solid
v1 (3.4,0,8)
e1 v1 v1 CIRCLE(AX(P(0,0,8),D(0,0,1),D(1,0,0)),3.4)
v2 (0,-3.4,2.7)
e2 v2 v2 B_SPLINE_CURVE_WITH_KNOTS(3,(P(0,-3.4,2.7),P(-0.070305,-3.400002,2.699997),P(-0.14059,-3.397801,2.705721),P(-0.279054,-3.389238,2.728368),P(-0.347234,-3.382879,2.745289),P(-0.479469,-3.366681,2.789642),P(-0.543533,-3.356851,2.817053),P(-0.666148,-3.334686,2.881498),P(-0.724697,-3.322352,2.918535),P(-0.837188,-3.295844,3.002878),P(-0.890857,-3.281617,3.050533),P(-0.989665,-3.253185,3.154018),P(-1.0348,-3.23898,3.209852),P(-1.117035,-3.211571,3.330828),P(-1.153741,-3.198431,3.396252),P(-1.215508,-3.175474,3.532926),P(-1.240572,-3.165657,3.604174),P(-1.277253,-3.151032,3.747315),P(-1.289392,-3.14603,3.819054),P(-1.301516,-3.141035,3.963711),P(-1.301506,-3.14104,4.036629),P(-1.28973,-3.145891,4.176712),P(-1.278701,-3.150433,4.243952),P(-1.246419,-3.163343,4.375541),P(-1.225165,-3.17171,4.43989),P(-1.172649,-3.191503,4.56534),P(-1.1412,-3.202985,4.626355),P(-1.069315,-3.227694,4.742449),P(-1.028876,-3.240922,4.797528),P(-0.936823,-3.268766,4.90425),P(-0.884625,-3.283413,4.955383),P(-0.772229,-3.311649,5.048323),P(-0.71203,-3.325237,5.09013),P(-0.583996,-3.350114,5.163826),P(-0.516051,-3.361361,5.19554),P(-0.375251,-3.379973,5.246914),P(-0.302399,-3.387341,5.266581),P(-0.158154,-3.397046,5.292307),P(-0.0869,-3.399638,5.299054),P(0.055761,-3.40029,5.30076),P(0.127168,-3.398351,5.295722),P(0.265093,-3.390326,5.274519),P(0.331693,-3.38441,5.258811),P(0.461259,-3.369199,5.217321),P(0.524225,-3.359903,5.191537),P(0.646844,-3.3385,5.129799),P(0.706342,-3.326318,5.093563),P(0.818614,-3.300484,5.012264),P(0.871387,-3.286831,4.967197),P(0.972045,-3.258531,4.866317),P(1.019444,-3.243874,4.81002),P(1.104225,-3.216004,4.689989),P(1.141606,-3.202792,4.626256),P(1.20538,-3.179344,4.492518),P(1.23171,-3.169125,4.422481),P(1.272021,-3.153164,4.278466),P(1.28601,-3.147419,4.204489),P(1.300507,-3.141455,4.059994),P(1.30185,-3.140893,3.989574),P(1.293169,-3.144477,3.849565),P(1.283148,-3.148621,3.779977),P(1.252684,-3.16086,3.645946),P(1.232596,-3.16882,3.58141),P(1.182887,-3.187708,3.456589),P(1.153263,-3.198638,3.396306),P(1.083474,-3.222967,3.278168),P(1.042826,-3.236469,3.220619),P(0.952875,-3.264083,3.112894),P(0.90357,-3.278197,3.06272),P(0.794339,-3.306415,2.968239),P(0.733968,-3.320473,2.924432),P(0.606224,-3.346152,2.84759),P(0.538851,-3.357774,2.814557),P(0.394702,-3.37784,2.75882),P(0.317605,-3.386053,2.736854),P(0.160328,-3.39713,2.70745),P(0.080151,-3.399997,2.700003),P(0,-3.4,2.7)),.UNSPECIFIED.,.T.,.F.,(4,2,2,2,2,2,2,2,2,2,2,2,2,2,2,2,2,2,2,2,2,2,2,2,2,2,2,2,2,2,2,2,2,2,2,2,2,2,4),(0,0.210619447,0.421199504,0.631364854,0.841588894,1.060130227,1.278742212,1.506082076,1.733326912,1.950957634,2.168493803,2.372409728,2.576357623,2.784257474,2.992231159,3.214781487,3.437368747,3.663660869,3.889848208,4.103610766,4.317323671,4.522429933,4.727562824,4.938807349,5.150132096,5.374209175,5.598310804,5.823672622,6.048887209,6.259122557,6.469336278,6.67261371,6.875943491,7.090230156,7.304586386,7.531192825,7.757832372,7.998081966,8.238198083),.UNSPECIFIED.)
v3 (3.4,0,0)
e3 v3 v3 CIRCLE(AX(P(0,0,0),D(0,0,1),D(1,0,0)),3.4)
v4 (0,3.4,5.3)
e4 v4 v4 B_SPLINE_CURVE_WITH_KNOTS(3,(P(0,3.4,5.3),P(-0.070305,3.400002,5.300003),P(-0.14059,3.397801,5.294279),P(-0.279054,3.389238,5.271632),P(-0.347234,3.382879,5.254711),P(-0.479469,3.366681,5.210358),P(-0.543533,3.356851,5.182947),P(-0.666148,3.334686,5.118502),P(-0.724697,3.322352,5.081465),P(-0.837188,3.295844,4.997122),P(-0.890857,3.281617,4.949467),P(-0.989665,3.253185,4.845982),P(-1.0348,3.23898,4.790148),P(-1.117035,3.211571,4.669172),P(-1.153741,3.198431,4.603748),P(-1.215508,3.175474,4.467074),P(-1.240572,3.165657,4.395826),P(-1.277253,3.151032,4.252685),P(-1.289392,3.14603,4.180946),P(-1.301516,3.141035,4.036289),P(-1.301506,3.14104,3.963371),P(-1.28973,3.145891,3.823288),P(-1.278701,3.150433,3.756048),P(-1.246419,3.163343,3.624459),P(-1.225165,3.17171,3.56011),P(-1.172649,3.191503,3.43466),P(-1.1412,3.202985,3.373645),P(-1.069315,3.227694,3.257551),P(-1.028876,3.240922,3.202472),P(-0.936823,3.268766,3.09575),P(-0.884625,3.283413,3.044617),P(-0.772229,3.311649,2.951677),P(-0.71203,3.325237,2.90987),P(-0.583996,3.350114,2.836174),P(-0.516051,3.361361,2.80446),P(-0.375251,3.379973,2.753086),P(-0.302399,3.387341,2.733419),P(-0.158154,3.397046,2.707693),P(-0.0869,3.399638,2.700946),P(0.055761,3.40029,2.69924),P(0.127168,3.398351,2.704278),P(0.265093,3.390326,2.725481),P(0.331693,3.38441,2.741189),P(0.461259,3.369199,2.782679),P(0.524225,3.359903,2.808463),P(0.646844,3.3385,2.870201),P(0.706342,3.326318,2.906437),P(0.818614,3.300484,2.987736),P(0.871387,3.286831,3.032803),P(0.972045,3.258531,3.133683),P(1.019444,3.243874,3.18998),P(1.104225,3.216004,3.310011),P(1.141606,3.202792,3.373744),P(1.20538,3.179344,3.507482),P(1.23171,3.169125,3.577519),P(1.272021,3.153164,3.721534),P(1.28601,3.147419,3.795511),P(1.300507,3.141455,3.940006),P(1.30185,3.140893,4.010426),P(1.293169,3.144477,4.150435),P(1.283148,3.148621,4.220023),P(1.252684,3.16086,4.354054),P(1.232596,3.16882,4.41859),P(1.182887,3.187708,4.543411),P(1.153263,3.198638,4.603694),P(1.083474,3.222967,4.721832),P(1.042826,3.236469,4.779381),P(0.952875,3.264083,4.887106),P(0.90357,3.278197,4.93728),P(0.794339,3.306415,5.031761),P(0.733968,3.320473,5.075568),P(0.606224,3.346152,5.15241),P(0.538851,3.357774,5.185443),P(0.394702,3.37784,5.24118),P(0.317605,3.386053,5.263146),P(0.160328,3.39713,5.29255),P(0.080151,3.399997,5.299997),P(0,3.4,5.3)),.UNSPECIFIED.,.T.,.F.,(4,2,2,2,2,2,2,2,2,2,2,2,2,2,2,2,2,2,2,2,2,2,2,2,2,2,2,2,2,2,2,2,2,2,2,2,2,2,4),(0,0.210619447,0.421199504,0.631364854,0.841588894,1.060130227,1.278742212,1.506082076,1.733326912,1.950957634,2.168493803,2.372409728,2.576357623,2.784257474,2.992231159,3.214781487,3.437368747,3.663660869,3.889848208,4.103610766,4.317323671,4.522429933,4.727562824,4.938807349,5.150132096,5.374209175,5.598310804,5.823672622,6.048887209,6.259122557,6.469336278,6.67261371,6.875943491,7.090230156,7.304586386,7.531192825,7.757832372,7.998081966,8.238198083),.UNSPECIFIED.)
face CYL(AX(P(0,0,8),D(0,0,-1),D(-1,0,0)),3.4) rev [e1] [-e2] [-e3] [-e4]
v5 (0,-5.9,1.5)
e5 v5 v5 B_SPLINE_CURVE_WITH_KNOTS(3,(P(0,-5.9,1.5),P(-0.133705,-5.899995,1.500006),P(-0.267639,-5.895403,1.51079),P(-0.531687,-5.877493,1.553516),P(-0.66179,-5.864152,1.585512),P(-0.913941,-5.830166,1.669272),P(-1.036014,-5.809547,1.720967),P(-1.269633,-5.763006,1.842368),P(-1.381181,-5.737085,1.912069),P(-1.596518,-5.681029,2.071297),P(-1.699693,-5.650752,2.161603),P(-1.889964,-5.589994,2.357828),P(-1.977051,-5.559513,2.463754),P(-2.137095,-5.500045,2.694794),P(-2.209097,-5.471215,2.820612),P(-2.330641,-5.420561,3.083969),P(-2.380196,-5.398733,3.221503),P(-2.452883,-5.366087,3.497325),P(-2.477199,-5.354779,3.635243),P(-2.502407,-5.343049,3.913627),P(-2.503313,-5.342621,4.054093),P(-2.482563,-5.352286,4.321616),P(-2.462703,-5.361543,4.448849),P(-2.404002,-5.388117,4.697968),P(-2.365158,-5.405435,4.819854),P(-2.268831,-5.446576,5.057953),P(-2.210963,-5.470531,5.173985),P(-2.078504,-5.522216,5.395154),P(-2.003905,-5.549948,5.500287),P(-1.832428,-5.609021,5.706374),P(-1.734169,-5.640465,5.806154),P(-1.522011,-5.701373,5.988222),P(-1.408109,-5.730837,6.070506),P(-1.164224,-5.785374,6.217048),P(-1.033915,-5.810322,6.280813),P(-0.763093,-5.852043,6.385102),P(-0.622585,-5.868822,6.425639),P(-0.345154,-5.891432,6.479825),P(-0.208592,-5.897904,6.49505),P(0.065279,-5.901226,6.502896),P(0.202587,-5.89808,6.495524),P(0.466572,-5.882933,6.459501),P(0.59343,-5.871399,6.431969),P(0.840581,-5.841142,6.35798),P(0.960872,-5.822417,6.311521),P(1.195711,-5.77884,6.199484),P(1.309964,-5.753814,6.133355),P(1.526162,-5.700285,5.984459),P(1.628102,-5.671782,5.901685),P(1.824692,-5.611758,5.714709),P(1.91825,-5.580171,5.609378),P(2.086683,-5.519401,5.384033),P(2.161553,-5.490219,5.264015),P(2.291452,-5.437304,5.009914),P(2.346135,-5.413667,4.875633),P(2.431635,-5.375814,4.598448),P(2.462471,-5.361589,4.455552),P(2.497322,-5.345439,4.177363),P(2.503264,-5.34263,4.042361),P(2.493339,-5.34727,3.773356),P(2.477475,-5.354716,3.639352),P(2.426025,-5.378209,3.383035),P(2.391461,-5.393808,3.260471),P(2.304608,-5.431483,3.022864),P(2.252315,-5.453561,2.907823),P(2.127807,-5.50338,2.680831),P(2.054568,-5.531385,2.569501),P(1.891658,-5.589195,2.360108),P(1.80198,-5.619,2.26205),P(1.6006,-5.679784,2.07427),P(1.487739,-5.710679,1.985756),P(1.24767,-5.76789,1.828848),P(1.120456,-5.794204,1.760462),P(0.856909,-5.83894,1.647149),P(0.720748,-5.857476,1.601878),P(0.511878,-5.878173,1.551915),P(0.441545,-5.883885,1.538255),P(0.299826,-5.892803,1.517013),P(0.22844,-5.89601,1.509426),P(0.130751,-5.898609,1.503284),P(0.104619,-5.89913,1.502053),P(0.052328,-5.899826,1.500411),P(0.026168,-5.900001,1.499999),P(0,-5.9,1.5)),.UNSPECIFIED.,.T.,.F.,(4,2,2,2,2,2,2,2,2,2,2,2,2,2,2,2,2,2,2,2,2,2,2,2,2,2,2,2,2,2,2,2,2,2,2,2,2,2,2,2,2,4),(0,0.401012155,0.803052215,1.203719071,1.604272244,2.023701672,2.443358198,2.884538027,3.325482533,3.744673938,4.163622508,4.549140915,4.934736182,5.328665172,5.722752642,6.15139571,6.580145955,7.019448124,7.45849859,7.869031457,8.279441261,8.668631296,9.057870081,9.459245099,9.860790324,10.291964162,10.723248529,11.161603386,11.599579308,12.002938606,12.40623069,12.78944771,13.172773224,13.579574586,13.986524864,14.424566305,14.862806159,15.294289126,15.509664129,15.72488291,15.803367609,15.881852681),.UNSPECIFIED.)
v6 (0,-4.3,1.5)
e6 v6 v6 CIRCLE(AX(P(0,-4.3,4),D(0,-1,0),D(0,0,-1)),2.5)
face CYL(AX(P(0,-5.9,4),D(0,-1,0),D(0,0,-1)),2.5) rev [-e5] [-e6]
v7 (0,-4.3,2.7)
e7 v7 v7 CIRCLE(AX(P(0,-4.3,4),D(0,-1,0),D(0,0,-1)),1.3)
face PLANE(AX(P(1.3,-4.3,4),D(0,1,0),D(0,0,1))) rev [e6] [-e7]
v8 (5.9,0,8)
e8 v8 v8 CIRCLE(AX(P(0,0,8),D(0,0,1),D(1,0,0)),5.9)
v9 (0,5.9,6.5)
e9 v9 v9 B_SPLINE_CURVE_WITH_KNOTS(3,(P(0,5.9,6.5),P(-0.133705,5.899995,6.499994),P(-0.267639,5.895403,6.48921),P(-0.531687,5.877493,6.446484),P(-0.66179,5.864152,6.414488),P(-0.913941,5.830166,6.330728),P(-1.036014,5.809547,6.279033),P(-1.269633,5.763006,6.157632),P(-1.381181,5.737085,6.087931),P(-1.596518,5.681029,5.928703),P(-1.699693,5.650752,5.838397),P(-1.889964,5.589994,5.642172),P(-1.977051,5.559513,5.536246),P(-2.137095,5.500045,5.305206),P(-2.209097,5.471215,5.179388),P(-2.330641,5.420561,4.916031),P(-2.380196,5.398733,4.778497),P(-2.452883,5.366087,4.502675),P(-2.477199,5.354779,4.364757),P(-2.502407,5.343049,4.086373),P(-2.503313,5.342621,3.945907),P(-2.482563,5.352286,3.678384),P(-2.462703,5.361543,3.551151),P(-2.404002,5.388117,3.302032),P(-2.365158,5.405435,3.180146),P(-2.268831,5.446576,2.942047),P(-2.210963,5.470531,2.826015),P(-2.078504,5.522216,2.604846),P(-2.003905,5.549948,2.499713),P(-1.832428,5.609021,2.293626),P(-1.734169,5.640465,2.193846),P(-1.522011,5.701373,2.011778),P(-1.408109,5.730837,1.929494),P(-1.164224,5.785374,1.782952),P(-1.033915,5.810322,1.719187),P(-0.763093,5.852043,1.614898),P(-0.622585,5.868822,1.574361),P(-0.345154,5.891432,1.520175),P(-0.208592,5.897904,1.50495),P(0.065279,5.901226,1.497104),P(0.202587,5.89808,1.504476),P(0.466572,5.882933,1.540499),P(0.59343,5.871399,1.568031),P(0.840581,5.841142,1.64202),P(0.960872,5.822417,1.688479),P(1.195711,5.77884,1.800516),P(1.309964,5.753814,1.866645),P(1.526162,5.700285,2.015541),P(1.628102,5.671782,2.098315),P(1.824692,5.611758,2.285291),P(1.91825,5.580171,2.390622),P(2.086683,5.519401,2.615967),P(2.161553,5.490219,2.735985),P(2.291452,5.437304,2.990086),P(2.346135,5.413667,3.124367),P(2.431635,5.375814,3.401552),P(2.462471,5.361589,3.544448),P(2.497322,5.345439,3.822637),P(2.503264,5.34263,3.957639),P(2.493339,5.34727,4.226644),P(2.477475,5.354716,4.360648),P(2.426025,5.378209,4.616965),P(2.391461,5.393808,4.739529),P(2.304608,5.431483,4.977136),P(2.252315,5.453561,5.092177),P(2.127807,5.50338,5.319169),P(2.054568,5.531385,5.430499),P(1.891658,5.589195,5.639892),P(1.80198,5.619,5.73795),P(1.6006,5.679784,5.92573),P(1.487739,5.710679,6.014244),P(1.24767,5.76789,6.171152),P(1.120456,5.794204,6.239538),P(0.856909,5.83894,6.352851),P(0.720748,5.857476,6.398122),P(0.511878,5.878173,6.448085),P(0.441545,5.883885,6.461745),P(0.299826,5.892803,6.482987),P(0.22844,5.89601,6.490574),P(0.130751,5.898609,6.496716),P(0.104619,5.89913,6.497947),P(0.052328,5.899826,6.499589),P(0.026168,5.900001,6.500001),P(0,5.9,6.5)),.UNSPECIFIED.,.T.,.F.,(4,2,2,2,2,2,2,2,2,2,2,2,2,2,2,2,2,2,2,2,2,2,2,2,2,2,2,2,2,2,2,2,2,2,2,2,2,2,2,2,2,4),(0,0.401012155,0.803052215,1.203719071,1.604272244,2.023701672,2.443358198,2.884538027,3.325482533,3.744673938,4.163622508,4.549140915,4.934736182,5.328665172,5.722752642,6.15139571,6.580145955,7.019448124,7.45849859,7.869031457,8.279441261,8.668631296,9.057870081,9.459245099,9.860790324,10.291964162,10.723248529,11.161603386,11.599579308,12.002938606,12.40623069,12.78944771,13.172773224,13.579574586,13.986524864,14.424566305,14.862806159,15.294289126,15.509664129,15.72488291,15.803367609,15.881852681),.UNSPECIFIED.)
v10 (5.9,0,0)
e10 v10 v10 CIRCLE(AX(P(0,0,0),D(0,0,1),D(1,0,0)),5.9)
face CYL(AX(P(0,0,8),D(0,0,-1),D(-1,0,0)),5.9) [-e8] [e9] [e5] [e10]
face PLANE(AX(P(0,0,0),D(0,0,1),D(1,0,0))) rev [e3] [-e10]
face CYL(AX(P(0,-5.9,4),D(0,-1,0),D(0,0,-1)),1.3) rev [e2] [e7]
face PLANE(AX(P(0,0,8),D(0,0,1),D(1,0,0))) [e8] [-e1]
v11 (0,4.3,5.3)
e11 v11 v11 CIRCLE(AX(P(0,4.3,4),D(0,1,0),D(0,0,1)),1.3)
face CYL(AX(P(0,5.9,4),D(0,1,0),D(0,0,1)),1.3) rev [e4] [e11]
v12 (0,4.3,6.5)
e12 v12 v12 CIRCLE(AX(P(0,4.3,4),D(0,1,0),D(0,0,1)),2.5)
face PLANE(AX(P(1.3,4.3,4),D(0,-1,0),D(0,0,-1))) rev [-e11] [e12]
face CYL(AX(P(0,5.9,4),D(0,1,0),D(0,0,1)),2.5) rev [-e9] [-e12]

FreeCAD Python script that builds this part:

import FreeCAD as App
import Part
import Sketcher
from FreeCAD import Vector
Q = App.Units.Quantity


def add_polygon(sketch, points):
    """Adds a closed chain of lines whose ends are joined by coincident constraints."""
    first, n = sketch.GeometryCount, len(points)
    for a, b in zip(points, points[1:] + points[:1]):
        sketch.addGeometry(Part.LineSegment(App.Vector(*a, 0), App.Vector(*b, 0)), False)
    for i in range(n):
        sketch.addConstraint(Sketcher.Constraint("Coincident", first + i, 2, first + (i + 1) % n, 1))

doc = App.newDocument("Part")
body = doc.addObject("PartDesign::Body", "Body")

# Sketch on XY plane
sketch1 = body.newObject("Sketcher::SketchObject", "Sketch")
sketch1.AttachmentSupport = (doc.getObject("XY_Plane"), [""])
sketch1.MapMode = "FlatFace"
sketch1.addGeometry([
    Part.Circle(Vector(0, 0, 0), Vector(0, 0, 1), 5.9),
    Part.Circle(Vector(0, 0, 0), Vector(0, 0, 1), 3.4),
], False)
sketch1.addConstraint([
    Sketcher.Constraint("Coincident", 0, 3, -1, 1),
    Sketcher.Constraint("Coincident", 1, 3, -1, 1),
    Sketcher.Constraint("Diameter", 0, Q("11.8 mm")),
    Sketcher.Constraint("Diameter", 1, Q("6.8 mm")),
])
pad1 = body.newObject("PartDesign::Pad", "Pad")
pad1.Profile = sketch1
pad1.Length = 8

# Sketch on YZ plane
sketch2 = body.newObject("Sketcher::SketchObject", "Sketch001")
sketch2.AttachmentSupport = (doc.getObject("YZ_Plane"), [""])
sketch2.MapMode = "FlatFace"
add_polygon(sketch2, [(0.1, 4), (5.9, 4), (5.9, 6.5), (4.3, 6.5), (4.3, 5.3), (0.9, 5.3)])  # lines 0-5
sketch2.addGeometry(Part.LineSegment(Vector(5.9, 4, 0), Vector(0.1, 4, 0)), True)  # axis
sketch2.addConstraint([
    Sketcher.Constraint("Horizontal", 0),
    Sketcher.Constraint("Vertical", 1),
    Sketcher.Constraint("Horizontal", 2),
    Sketcher.Constraint("Vertical", 3),
    Sketcher.Constraint("Horizontal", 4),
    Sketcher.Constraint("Horizontal", 6),
    Sketcher.Constraint("Coincident", 6, 1, 0, 2),
    Sketcher.Constraint("Equal", 0, 6),
    Sketcher.Constraint("Angle", 5, Q("-121 deg")),
    Sketcher.Constraint("DistanceX", 2, 2, 2, 1, Q("1.6 mm")),
    Sketcher.Constraint("DistanceX", 4, 2, 4, 1, Q("3.4 mm")),
    Sketcher.Constraint("DistanceY", 1, 1, 1, 2, Q("2.5 mm")),
    Sketcher.Constraint("DistanceY", 3, 2, 3, 1, Q("1.2 mm")),
    Sketcher.Constraint("DistanceY", -1, 1, 0, 2, Q("4 mm")),
    Sketcher.Constraint("DistanceX", -1, 1, 0, 2, Q("5.9 mm")),
])
groove = body.newObject("PartDesign::Groove", "Groove")
groove.Profile = sketch2
groove.ReferenceAxis = (sketch2, ["Axis0"])
groove.Angle = 360
doc.recompute()

polarpattern = body.newObject("PartDesign::PolarPattern", "PolarPattern")
polarpattern.Originals = [groove]
polarpattern.Axis = (doc.getObject("Z_Axis"), [""])
polarpattern.Angle = 360
polarpattern.Occurrences = 2
body.Tip = polarpattern

doc.recompute()
